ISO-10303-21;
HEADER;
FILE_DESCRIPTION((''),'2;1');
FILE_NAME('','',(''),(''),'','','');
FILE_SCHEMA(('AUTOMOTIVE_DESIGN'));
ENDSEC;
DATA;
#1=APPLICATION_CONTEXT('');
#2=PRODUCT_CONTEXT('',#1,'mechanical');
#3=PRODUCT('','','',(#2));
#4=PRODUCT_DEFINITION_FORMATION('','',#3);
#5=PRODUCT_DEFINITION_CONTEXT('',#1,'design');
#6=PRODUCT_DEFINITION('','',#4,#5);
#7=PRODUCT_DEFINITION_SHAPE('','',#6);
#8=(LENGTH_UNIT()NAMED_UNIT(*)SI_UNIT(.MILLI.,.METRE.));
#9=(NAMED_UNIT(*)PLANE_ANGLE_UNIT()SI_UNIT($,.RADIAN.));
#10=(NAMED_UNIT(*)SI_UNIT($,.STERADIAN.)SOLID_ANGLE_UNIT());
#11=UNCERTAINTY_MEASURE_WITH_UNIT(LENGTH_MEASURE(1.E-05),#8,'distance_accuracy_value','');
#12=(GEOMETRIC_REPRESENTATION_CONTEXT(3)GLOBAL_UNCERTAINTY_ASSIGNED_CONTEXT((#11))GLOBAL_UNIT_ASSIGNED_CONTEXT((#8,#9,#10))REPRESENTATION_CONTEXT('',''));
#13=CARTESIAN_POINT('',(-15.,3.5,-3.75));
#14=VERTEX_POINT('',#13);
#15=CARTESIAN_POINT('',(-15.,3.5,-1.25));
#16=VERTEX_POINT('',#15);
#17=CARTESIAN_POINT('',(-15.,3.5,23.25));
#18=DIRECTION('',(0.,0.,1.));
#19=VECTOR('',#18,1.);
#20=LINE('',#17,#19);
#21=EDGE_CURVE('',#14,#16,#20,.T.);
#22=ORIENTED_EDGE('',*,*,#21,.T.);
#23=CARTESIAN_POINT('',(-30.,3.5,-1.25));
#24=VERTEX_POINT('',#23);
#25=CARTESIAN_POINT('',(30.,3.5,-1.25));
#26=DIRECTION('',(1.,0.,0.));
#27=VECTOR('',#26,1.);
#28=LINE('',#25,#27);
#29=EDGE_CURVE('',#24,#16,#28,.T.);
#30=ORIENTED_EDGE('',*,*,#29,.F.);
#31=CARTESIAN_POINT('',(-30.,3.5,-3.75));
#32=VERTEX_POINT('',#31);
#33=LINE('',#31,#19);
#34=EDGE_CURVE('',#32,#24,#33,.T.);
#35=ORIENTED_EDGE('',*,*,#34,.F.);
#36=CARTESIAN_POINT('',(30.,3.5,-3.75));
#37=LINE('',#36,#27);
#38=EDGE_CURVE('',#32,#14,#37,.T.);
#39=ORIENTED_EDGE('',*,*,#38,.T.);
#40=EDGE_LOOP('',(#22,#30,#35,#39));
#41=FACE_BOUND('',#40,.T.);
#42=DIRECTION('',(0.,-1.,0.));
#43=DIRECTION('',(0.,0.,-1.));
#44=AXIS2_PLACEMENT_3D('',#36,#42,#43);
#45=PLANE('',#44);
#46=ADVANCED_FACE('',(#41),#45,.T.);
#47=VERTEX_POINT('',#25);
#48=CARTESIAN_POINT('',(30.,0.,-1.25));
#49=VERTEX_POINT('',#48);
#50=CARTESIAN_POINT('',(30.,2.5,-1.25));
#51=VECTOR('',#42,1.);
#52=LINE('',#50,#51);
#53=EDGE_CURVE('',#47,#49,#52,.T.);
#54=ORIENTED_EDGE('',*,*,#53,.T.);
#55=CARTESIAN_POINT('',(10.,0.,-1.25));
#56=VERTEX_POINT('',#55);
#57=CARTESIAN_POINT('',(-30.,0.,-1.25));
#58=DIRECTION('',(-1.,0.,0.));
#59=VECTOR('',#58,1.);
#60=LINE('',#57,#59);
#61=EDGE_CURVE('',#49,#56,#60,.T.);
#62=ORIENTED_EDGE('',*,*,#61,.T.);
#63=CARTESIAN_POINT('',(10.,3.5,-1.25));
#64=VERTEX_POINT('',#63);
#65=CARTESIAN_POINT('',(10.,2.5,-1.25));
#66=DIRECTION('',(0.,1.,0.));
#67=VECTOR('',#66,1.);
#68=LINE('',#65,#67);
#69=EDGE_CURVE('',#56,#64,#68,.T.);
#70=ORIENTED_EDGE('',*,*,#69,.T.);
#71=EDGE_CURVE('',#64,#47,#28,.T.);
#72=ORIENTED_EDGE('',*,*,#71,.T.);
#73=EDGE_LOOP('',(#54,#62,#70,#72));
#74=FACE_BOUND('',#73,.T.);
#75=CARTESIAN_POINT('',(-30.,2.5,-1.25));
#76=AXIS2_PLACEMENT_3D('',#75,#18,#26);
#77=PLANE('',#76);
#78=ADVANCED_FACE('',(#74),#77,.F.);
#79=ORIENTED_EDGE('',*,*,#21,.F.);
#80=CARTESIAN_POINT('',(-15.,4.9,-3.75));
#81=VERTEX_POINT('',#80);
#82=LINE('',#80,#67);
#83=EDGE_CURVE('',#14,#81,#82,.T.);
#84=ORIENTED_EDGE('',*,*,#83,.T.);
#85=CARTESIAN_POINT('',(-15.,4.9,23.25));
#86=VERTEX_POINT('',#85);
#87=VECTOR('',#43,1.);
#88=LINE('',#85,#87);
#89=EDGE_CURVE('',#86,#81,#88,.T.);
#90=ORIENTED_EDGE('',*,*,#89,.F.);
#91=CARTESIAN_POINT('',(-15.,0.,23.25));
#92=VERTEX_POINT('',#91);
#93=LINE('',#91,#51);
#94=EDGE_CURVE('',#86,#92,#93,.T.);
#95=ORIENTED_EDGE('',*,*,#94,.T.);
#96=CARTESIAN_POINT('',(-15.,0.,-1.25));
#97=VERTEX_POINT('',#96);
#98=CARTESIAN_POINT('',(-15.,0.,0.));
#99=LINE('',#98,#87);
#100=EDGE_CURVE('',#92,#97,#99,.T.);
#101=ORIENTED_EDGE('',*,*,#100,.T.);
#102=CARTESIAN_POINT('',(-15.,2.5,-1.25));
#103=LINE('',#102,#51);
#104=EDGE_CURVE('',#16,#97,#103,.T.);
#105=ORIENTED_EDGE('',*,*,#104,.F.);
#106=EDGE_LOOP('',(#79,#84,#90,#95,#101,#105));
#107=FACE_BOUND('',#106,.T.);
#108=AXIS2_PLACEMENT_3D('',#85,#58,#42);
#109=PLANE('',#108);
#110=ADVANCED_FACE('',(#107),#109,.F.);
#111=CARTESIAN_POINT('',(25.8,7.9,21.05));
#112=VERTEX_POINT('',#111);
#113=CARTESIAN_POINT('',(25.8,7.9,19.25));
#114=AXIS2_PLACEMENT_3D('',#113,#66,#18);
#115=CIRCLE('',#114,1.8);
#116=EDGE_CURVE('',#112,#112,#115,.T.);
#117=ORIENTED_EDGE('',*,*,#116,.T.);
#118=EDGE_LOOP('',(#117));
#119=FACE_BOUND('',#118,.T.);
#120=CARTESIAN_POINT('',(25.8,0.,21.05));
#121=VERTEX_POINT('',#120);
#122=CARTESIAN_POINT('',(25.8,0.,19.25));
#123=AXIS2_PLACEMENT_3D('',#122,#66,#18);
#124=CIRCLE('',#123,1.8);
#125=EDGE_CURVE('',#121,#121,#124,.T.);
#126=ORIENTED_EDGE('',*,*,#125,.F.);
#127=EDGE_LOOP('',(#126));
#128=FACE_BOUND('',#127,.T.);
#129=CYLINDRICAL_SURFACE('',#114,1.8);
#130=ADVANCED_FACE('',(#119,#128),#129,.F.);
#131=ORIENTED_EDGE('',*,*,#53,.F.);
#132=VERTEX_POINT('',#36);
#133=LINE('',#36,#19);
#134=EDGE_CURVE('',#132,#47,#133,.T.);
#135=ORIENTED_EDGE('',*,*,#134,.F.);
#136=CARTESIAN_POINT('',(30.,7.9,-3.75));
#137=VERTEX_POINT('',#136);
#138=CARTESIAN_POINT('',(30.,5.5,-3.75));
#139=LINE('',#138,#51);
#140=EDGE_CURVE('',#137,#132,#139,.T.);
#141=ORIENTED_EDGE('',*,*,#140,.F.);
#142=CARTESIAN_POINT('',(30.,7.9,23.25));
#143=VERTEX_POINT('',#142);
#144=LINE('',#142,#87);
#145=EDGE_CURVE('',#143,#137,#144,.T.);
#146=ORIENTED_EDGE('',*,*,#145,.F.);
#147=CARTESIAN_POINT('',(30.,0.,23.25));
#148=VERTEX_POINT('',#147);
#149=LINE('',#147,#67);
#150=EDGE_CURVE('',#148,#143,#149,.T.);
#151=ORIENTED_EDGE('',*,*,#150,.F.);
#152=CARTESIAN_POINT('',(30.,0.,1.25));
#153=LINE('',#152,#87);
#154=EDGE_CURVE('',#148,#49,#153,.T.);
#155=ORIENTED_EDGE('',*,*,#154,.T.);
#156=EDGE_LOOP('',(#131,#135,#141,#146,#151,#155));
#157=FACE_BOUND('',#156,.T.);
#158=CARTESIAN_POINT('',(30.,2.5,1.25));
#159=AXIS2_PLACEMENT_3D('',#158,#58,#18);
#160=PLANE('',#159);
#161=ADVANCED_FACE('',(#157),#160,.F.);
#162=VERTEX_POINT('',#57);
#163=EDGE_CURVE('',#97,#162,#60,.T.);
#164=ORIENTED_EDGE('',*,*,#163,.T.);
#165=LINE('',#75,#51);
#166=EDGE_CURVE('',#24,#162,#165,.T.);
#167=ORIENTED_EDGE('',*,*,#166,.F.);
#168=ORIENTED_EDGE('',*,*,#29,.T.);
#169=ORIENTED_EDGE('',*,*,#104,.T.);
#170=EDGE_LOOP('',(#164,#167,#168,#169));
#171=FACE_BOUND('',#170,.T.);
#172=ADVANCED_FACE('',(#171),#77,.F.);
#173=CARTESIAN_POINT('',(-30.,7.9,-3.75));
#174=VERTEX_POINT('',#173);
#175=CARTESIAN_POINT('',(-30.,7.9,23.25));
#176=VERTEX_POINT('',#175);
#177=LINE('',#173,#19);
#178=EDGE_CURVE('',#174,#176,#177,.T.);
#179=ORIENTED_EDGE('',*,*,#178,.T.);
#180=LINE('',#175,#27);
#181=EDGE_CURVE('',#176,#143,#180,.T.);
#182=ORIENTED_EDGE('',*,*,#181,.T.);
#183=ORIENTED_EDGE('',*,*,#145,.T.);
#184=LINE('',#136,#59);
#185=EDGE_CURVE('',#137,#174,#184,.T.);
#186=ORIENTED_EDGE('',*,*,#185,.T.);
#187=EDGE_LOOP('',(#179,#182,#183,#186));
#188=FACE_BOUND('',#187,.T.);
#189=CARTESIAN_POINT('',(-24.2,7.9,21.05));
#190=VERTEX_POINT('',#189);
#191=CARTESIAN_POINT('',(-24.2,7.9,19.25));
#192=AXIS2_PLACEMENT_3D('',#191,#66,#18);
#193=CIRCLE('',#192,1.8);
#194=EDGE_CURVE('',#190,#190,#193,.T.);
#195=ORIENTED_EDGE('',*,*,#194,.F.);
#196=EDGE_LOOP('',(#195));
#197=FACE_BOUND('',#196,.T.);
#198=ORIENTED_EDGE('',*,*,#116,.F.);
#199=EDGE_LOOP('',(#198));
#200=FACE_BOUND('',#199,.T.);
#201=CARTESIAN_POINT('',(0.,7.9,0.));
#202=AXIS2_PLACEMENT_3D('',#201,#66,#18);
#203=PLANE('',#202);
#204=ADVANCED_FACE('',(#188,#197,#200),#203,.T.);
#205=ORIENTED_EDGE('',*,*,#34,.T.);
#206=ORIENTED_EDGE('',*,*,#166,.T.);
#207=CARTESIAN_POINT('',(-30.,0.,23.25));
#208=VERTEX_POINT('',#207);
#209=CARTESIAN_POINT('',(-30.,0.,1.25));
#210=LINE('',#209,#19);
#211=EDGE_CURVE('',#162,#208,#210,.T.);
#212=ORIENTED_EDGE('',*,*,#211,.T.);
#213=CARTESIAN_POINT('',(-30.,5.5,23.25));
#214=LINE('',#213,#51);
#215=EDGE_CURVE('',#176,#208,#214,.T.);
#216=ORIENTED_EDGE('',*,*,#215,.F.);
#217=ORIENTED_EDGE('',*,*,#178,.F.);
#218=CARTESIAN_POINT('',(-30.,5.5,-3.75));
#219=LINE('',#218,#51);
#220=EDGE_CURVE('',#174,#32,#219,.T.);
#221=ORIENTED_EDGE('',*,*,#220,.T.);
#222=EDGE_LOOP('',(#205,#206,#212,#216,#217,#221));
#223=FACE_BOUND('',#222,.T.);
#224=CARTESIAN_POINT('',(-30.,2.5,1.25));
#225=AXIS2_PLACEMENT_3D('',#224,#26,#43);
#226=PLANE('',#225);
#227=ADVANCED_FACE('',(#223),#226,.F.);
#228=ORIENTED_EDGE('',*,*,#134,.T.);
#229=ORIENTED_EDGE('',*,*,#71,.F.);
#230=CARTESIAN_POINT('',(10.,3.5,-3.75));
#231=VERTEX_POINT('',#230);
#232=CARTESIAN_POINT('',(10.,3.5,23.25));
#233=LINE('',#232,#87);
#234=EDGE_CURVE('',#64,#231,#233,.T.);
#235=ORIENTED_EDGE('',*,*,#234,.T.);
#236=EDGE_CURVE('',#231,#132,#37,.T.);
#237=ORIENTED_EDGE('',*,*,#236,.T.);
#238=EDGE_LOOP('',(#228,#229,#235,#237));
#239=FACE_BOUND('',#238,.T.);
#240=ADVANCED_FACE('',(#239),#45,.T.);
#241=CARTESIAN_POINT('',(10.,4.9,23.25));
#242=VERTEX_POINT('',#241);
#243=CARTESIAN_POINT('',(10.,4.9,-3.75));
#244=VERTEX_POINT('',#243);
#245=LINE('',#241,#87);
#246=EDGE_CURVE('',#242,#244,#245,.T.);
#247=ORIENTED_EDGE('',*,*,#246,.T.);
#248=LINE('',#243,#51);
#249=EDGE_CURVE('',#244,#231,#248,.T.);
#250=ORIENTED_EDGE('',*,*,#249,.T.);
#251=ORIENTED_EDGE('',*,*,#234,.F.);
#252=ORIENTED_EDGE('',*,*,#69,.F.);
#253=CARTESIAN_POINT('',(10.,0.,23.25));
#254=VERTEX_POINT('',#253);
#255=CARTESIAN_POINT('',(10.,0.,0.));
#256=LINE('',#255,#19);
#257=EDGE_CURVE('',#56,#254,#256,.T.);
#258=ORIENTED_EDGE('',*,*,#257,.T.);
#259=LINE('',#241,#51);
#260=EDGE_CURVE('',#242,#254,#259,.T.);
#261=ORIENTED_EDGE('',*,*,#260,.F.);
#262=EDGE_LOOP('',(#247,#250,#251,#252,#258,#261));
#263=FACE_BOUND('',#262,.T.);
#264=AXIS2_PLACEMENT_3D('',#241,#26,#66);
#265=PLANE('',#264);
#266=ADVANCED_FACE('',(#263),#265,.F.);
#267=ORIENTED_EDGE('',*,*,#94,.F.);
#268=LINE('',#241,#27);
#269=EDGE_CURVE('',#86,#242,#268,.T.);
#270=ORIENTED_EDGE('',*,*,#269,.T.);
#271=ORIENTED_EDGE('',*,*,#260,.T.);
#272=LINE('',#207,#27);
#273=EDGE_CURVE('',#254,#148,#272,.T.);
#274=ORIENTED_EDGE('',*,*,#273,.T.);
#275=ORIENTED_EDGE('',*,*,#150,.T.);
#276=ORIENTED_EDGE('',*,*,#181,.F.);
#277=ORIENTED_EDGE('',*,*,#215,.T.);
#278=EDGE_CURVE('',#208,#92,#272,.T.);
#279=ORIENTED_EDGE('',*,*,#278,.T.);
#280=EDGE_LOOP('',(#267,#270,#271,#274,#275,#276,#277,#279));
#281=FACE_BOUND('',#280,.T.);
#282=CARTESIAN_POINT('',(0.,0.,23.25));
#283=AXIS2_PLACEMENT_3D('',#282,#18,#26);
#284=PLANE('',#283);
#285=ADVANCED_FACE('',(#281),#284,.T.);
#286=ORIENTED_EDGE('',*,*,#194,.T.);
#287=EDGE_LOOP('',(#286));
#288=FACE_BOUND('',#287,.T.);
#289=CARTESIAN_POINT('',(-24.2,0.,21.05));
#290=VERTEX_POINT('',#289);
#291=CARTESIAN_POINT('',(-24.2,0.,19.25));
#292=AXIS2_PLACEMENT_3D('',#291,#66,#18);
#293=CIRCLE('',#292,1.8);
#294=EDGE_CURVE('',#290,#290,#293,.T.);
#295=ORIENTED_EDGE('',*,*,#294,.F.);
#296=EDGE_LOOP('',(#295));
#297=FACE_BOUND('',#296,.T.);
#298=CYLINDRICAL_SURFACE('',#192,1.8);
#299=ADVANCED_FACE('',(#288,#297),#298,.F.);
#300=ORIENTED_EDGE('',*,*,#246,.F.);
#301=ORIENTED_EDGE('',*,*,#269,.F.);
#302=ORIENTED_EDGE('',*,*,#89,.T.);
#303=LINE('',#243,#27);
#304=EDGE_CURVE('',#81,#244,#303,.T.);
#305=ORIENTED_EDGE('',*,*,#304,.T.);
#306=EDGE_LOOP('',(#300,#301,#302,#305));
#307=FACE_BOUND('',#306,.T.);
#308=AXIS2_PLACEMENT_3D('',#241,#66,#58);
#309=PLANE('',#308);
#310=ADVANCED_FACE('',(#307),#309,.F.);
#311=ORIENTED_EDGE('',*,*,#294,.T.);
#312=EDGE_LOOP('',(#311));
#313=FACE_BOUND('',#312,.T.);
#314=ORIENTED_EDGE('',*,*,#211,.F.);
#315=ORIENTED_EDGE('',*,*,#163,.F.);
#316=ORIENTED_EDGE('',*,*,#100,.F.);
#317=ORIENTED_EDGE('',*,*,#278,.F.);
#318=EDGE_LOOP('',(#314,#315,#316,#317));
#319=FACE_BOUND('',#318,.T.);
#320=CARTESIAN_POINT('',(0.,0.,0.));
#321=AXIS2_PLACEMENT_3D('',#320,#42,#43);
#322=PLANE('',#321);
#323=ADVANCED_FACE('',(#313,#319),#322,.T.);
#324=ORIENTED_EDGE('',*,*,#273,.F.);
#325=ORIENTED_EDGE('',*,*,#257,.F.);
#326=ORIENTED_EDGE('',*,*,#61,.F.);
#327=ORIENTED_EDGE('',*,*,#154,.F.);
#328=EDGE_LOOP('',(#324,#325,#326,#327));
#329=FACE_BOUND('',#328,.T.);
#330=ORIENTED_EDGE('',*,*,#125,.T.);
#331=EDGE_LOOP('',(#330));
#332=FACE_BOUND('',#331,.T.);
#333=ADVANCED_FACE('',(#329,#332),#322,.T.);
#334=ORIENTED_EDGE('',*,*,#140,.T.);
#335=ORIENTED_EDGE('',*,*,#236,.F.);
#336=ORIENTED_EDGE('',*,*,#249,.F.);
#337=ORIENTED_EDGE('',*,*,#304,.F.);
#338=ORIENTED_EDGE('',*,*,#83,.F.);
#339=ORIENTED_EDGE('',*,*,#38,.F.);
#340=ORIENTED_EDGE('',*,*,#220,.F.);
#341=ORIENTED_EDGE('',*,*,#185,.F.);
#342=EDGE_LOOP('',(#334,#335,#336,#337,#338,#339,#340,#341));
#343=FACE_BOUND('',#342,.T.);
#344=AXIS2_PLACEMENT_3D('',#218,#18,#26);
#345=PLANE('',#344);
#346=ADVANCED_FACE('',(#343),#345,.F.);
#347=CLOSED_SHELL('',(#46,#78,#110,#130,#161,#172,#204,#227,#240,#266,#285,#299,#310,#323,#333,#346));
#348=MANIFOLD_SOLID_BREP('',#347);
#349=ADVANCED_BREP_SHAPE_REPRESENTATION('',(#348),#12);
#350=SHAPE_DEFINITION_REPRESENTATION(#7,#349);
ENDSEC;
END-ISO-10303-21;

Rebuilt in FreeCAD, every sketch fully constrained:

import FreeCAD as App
import Part
import Sketcher

V = App.Vector
Q = App.Units.Quantity

doc = App.newDocument("Part")
body = doc.addObject("PartDesign::Body", "Body")

sketch1 = doc.addObject("Sketcher::SketchObject", "Sketch")
body.addObject(sketch1)
sketch1.AttachmentSupport = (doc.XZ_Plane, [""])
sketch1.MapMode = "FlatFace"
sketch1.addGeometry([
    Part.LineSegment(V(-30, -1.2, 0), V(-30, 1.2, 0)),
    Part.LineSegment(V(-30, 1.2, 0), V(30, 1.2, 0)),
    Part.LineSegment(V(30, 1.2, 0), V(30, -1.2, 0)),
    Part.LineSegment(V(30, -1.2, 0), V(-30, -1.2, 0)),
], False)
sketch1.addConstraint([
    Sketcher.Constraint("Coincident", 0, 2, 1, 1),
    Sketcher.Constraint("Coincident", 1, 2, 2, 1),
    Sketcher.Constraint("Coincident", 2, 2, 3, 1),
    Sketcher.Constraint("Coincident", 3, 2, 0, 1),
    Sketcher.Constraint("Vertical", 0),
    Sketcher.Constraint("Horizontal", 1),
    Sketcher.Constraint("Vertical", 2),
    Sketcher.Constraint("Horizontal", 3),
    Sketcher.Constraint("Symmetric", 0, 2, 2, 2, -1, 1),
    Sketcher.Constraint("DistanceX", 1, 1, 1, 2, Q("60 mm")),
    Sketcher.Constraint("DistanceY", 0, 1, 0, 2, Q("2.5 mm")),
])
pad1 = doc.addObject("PartDesign::Pad", "Pad")
body.addObject(pad1)
pad1.Profile = sketch1
pad1.Length = 2.5
pad1.Reversed = True

sketch2 = doc.addObject("Sketcher::SketchObject", "Sketch001")
body.addObject(sketch2)
sketch2.AttachmentSupport = (doc.XZ_Plane, [""])
sketch2.MapMode = "FlatFace"
sketch2.AttachmentOffset = App.Placement(V(0, 0, -2.5), App.Rotation())
sketch2.addGeometry([
    Part.LineSegment(V(-30, -4, 0), V(-30, 1, 0)),
    Part.LineSegment(V(-30, 1, 0), V(30, 1, 0)),
    Part.LineSegment(V(30, 1, 0), V(30, -4, 0)),
    Part.LineSegment(V(30, -4, 0), V(-30, -4, 0)),
], False)
sketch2.addConstraint([
    Sketcher.Constraint("Coincident", 0, 2, 1, 1),
    Sketcher.Constraint("Coincident", 1, 2, 2, 1),
    Sketcher.Constraint("Coincident", 2, 2, 3, 1),
    Sketcher.Constraint("Coincident", 3, 2, 0, 1),
    Sketcher.Constraint("Vertical", 0),
    Sketcher.Constraint("Horizontal", 1),
    Sketcher.Constraint("Vertical", 2),
    Sketcher.Constraint("Horizontal", 3),
    Sketcher.Constraint("DistanceX", 1, 1, 1, 2, Q("60 mm")),
    Sketcher.Constraint("DistanceY", 0, 1, 0, 2, Q("5 mm")),
    Sketcher.Constraint("DistanceX", 0, 2, -1, 1, Q("30 mm")),
    Sketcher.Constraint("DistanceY", -1, 1, 0, 2, Q("1.25 mm")),
])
pad2 = doc.addObject("PartDesign::Pad", "Pad001")
body.addObject(pad2)
pad2.Profile = sketch2
pad2.Length = 3
pad2.Reversed = True

sketch3 = doc.addObject("Sketcher::SketchObject", "Sketch002")
body.addObject(sketch3)
sketch3.AttachmentSupport = (doc.XY_Plane, [""])
sketch3.MapMode = "FlatFace"
sketch3.AttachmentOffset = App.Placement(V(0, 0, 1.25), App.Rotation())
sketch3.addGeometry([
    Part.LineSegment(V(-30, 6, 0), V(-30, 0, 0)),
    Part.LineSegment(V(-30, 0, 0), V(30, 0, 0)),
    Part.LineSegment(V(30, 0, 0), V(30, 6, 0)),
    Part.LineSegment(V(30, 6, 0), V(-30, 6, 0)),
], False)
sketch3.addConstraint([
    Sketcher.Constraint("Coincident", 0, 2, 1, 1),
    Sketcher.Constraint("Coincident", 1, 2, 2, 1),
    Sketcher.Constraint("Coincident", 2, 2, 3, 1),
    Sketcher.Constraint("Coincident", 3, 2, 0, 1),
    Sketcher.Constraint("Vertical", 0),
    Sketcher.Constraint("Horizontal", 1),
    Sketcher.Constraint("Vertical", 2),
    Sketcher.Constraint("Horizontal", 3),
    Sketcher.Constraint("Symmetric", 0, 2, 1, 2, -1, 1),
    Sketcher.Constraint("DistanceX", 1, 1, 1, 2, Q("60 mm")),
    Sketcher.Constraint("DistanceY", 0, 2, 0, 1, Q("5.5 mm")),
])
pad3 = doc.addObject("PartDesign::Pad", "Pad002")
body.addObject(pad3)
pad3.Profile = sketch3
pad3.Length = 22

sketch4 = doc.addObject("Sketcher::SketchObject", "Sketch003")
body.addObject(sketch4)
sketch4.AttachmentSupport = (doc.XZ_Plane, [""])
sketch4.MapMode = "FlatFace"
sketch4.AttachmentOffset = App.Placement(V(0, 0, -5.5), App.Rotation())
sketch4.addGeometry([
    Part.LineSegment(V(-30, -4, 0), V(-30, 23, 0)),
    Part.LineSegment(V(-30, 23, 0), V(30, 23, 0)),
    Part.LineSegment(V(30, 23, 0), V(30, -4, 0)),
    Part.LineSegment(V(30, -4, 0), V(-30, -4, 0)),
], False)
sketch4.addConstraint([
    Sketcher.Constraint("Coincident", 0, 2, 1, 1),
    Sketcher.Constraint("Coincident", 1, 2, 2, 1),
    Sketcher.Constraint("Coincident", 2, 2, 3, 1),
    Sketcher.Constraint("Coincident", 3, 2, 0, 1),
    Sketcher.Constraint("Vertical", 0),
    Sketcher.Constraint("Horizontal", 1),
    Sketcher.Constraint("Vertical", 2),
    Sketcher.Constraint("Horizontal", 3),
    Sketcher.Constraint("DistanceX", 1, 1, 1, 2, Q("60 mm")),
    Sketcher.Constraint("DistanceY", 0, 1, 0, 2, Q("27 mm")),
    Sketcher.Constraint("DistanceX", 0, 2, -1, 1, Q("30 mm")),
    Sketcher.Constraint("DistanceY", -1, 1, 0, 2, Q("23.25 mm")),
])
pad4 = doc.addObject("PartDesign::Pad", "Pad003")
body.addObject(pad4)
pad4.Profile = sketch4
pad4.Length = 2.4
pad4.Reversed = True

sketch5 = doc.addObject("Sketcher::SketchObject", "Sketch004")
body.addObject(sketch5)
sketch5.AttachmentSupport = (doc.XZ_Plane, [""])
sketch5.MapMode = "FlatFace"
sketch5.AttachmentOffset = App.Placement(V(0, 0, -7.9), App.Rotation())
sketch5.addGeometry([
    Part.Circle(V(-24.2, 19.2, 0), V(0, 0, 1), 1.8),
    Part.Circle(V(25.8, 19.2, 0), V(0, 0, 1), 1.8),
], False)
sketch5.addConstraint([
    Sketcher.Constraint("Equal", 0, 1),
    Sketcher.Constraint("Horizontal", 0, 3, 1, 3),
    Sketcher.Constraint("Diameter", 0, Q("3.6 mm")),
    Sketcher.Constraint("DistanceX", 0, 3, 1, 3, Q("50 mm")),
    Sketcher.Constraint("DistanceX", 0, 3, -1, 1, Q("24.2 mm")),
    Sketcher.Constraint("DistanceY", -1, 1, 0, 3, Q("19.25 mm")),
])
doc.recompute()
hole = doc.addObject("PartDesign::Hole", "Hole")
body.addObject(hole)
hole.Profile = sketch5
hole.ThreadType = "None"
hole.Diameter = 3.6
hole.DepthType = "ThroughAll"
hole.Reversed = True

sketch6 = doc.addObject("Sketcher::SketchObject", "Sketch005")
body.addObject(sketch6)
sketch6.AttachmentSupport = (doc.XY_Plane, [""])
sketch6.MapMode = "FlatFace"
sketch6.AttachmentOffset = App.Placement(V(0, 0, -3.75), App.Rotation())
sketch6.addGeometry([
    Part.LineSegment(V(10, 5, 0), V(10, -5, 0)),
    Part.LineSegment(V(10, -5, 0), V(-15, -5, 0)),
    Part.LineSegment(V(-15, -5, 0), V(-15, 5, 0)),
    Part.LineSegment(V(-15, 5, 0), V(10, 5, 0)),
], False)
sketch6.addConstraint([
    Sketcher.Constraint("Coincident", 0, 2, 1, 1),
    Sketcher.Constraint("Coincident", 1, 2, 2, 1),
    Sketcher.Constraint("Coincident", 2, 2, 3, 1),
    Sketcher.Constraint("Coincident", 3, 2, 0, 1),
    Sketcher.Constraint("Vertical", 0),
    Sketcher.Constraint("Horizontal", 1),
    Sketcher.Constraint("Vertical", 2),
    Sketcher.Constraint("Horizontal", 3),
    Sketcher.Constraint("DistanceX", 1, 2, 1, 1, Q("25 mm")),
    Sketcher.Constraint("DistanceX", -1, 1, 0, 2, Q("10 mm")),
    Sketcher.Constraint("DistanceY", -1, 1, 2, 2, Q("4.9 mm")),
    Sketcher.Constraint("DistanceY", 0, 2, 0, 1, Q("9.609635 mm")),
])
pocket1 = doc.addObject("PartDesign::Pocket", "Pocket")
body.addObject(pocket1)
pocket1.Profile = sketch6
pocket1.Type = "ThroughAll"
pocket1.Reversed = True

sketch7 = doc.addObject("Sketcher::SketchObject", "Sketch006")
body.addObject(sketch7)
sketch7.AttachmentSupport = (doc.XY_Plane, [""])
sketch7.MapMode = "FlatFace"
sketch7.AttachmentOffset = App.Placement(V(0, 0, -1.25), App.Rotation())
sketch7.addGeometry([
    Part.LineSegment(V(30, 3.5, 0), V(30, 0, 0)),
    Part.LineSegment(V(30, 0, 0), V(-30, 0, 0)),
    Part.LineSegment(V(-30, 0, 0), V(-30, 3.5, 0)),
    Part.LineSegment(V(-30, 3.5, 0), V(30, 3.5, 0)),
], False)
sketch7.addConstraint([
    Sketcher.Constraint("Coincident", 0, 2, 1, 1),
    Sketcher.Constraint("Coincident", 1, 2, 2, 1),
    Sketcher.Constraint("Coincident", 2, 2, 3, 1),
    Sketcher.Constraint("Coincident", 3, 2, 0, 1),
    Sketcher.Constraint("Vertical", 0),
    Sketcher.Constraint("Horizontal", 1),
    Sketcher.Constraint("Vertical", 2),
    Sketcher.Constraint("Horizontal", 3),
    Sketcher.Constraint("Symmetric", 0, 2, 1, 2, -1, 1),
    Sketcher.Constraint("DistanceX", 1, 2, 1, 1, Q("60 mm")),
    Sketcher.Constraint("DistanceY", 0, 2, 0, 1, Q("3.5 mm")),
])
pocket2 = doc.addObject("PartDesign::Pocket", "Pocket001")
body.addObject(pocket2)
pocket2.Profile = sketch7
pocket2.Type = "ThroughAll"

doc.recompute()
